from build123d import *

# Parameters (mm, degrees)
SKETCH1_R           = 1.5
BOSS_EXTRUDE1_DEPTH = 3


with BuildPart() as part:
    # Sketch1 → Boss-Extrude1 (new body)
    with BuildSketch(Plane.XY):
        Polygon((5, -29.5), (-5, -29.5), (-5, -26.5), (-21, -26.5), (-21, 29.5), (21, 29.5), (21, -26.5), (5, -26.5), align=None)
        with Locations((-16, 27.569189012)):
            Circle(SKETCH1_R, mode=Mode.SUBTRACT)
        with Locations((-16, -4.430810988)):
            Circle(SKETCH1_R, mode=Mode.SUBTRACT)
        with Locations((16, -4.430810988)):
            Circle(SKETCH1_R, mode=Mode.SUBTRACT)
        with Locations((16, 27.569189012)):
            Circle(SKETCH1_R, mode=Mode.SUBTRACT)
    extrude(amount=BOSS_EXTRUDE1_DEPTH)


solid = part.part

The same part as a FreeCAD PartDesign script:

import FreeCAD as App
import Part
import Sketcher

V = App.Vector
Q = App.Units.Quantity


def add_polygon(sketch, points):
    """Adds a closed chain of lines whose ends are joined by coincident constraints."""
    first, n = sketch.GeometryCount, len(points)
    for a, b in zip(points, points[1:] + points[:1]):
        sketch.addGeometry(Part.LineSegment(App.Vector(*a, 0), App.Vector(*b, 0)), False)
    for i in range(n):
        sketch.addConstraint(Sketcher.Constraint("Coincident", first + i, 2, first + (i + 1) % n, 1))

doc = App.newDocument("Part")
body = doc.addObject("PartDesign::Body", "Body")

# Sketch on XY plane
sketch1 = doc.addObject("Sketcher::SketchObject", "Sketch")
body.addObject(sketch1)
sketch1.AttachmentSupport = (doc.XY_Plane, [""])
sketch1.MapMode = "FlatFace"
add_polygon(sketch1, [(-5, -29.5), (5, -29.5), (5, -26.5), (21, -26.5), (21, 29.5), (-21, 29.5), (-21, -26.5), (-5, -26.5)])  # lines 0-7
sketch1.addGeometry(Part.Circle(V(16, -4.430811, 0), V(0, 0, 1), 1.5), False)  # 8
sketch1.addGeometry(Part.Circle(V(-16, -4.430811, 0), V(0, 0, 1), 1.5), False)  # 9
sketch1.addGeometry(Part.Circle(V(16, 27.569189, 0), V(0, 0, 1), 1.5), False)  # 10
sketch1.addGeometry(Part.Circle(V(-16, 27.569189, 0), V(0, 0, 1), 1.5), False)  # 11
sketch1.addConstraint(Sketcher.Constraint("Horizontal", 0))
sketch1.addConstraint(Sketcher.Constraint("Vertical", 1))
sketch1.addConstraint(Sketcher.Constraint("Horizontal", 2))
sketch1.addConstraint(Sketcher.Constraint("Vertical", 3))
sketch1.addConstraint(Sketcher.Constraint("Horizontal", 4))
sketch1.addConstraint(Sketcher.Constraint("Vertical", 5))
sketch1.addConstraint(Sketcher.Constraint("Horizontal", 6))
sketch1.addConstraint(Sketcher.Constraint("Vertical", 7))
sketch1.addConstraint(Sketcher.Constraint("Equal", 8, 9))
sketch1.addConstraint(Sketcher.Constraint("Equal", 9, 10))
sketch1.addConstraint(Sketcher.Constraint("Equal", 10, 11))
sketch1.addConstraint(Sketcher.Constraint("Symmetric", 8, 3, 9, 3, -2))
sketch1.addConstraint(Sketcher.Constraint("Symmetric", 10, 3, 11, 3, -2))
sketch1.addConstraint(Sketcher.Constraint("Symmetric", 2, 2, 5, 2, -2))
sketch1.addConstraint(Sketcher.Constraint("Vertical", 8, 3, 10, 3))
sketch1.addConstraint(Sketcher.Constraint("Equal", 2, 6))
sketch1.addConstraint(Sketcher.Constraint("Diameter", 8, Q("3 mm")))
sketch1.addConstraint(Sketcher.Constraint("DistanceX", 0, 1, 0, 2, Q("10 mm")))
sketch1.addConstraint(Sketcher.Constraint("DistanceX", 2, 1, 2, 2, Q("16 mm")))
sketch1.addConstraint(Sketcher.Constraint("DistanceY", 1, 1, 1, 2, Q("3 mm")))
sketch1.addConstraint(Sketcher.Constraint("DistanceY", 3, 1, 3, 2, Q("56 mm")))
sketch1.addConstraint(Sketcher.Constraint("DistanceX", -1, 1, 8, 3, Q("16 mm")))
sketch1.addConstraint(Sketcher.Constraint("DistanceY", 8, 3, 10, 3, Q("32 mm")))
sketch1.addConstraint(Sketcher.Constraint("DistanceY", 0, 2, -1, 1, Q("29.5 mm")))
sketch1.addConstraint(Sketcher.Constraint("DistanceY", 8, 3, -1, 1, Q("4.430811 mm")))
pad1 = doc.addObject("PartDesign::Pad", "Pad")
body.addObject(pad1)
pad1.Profile = sketch1
pad1.Length = 3

doc.recompute()
